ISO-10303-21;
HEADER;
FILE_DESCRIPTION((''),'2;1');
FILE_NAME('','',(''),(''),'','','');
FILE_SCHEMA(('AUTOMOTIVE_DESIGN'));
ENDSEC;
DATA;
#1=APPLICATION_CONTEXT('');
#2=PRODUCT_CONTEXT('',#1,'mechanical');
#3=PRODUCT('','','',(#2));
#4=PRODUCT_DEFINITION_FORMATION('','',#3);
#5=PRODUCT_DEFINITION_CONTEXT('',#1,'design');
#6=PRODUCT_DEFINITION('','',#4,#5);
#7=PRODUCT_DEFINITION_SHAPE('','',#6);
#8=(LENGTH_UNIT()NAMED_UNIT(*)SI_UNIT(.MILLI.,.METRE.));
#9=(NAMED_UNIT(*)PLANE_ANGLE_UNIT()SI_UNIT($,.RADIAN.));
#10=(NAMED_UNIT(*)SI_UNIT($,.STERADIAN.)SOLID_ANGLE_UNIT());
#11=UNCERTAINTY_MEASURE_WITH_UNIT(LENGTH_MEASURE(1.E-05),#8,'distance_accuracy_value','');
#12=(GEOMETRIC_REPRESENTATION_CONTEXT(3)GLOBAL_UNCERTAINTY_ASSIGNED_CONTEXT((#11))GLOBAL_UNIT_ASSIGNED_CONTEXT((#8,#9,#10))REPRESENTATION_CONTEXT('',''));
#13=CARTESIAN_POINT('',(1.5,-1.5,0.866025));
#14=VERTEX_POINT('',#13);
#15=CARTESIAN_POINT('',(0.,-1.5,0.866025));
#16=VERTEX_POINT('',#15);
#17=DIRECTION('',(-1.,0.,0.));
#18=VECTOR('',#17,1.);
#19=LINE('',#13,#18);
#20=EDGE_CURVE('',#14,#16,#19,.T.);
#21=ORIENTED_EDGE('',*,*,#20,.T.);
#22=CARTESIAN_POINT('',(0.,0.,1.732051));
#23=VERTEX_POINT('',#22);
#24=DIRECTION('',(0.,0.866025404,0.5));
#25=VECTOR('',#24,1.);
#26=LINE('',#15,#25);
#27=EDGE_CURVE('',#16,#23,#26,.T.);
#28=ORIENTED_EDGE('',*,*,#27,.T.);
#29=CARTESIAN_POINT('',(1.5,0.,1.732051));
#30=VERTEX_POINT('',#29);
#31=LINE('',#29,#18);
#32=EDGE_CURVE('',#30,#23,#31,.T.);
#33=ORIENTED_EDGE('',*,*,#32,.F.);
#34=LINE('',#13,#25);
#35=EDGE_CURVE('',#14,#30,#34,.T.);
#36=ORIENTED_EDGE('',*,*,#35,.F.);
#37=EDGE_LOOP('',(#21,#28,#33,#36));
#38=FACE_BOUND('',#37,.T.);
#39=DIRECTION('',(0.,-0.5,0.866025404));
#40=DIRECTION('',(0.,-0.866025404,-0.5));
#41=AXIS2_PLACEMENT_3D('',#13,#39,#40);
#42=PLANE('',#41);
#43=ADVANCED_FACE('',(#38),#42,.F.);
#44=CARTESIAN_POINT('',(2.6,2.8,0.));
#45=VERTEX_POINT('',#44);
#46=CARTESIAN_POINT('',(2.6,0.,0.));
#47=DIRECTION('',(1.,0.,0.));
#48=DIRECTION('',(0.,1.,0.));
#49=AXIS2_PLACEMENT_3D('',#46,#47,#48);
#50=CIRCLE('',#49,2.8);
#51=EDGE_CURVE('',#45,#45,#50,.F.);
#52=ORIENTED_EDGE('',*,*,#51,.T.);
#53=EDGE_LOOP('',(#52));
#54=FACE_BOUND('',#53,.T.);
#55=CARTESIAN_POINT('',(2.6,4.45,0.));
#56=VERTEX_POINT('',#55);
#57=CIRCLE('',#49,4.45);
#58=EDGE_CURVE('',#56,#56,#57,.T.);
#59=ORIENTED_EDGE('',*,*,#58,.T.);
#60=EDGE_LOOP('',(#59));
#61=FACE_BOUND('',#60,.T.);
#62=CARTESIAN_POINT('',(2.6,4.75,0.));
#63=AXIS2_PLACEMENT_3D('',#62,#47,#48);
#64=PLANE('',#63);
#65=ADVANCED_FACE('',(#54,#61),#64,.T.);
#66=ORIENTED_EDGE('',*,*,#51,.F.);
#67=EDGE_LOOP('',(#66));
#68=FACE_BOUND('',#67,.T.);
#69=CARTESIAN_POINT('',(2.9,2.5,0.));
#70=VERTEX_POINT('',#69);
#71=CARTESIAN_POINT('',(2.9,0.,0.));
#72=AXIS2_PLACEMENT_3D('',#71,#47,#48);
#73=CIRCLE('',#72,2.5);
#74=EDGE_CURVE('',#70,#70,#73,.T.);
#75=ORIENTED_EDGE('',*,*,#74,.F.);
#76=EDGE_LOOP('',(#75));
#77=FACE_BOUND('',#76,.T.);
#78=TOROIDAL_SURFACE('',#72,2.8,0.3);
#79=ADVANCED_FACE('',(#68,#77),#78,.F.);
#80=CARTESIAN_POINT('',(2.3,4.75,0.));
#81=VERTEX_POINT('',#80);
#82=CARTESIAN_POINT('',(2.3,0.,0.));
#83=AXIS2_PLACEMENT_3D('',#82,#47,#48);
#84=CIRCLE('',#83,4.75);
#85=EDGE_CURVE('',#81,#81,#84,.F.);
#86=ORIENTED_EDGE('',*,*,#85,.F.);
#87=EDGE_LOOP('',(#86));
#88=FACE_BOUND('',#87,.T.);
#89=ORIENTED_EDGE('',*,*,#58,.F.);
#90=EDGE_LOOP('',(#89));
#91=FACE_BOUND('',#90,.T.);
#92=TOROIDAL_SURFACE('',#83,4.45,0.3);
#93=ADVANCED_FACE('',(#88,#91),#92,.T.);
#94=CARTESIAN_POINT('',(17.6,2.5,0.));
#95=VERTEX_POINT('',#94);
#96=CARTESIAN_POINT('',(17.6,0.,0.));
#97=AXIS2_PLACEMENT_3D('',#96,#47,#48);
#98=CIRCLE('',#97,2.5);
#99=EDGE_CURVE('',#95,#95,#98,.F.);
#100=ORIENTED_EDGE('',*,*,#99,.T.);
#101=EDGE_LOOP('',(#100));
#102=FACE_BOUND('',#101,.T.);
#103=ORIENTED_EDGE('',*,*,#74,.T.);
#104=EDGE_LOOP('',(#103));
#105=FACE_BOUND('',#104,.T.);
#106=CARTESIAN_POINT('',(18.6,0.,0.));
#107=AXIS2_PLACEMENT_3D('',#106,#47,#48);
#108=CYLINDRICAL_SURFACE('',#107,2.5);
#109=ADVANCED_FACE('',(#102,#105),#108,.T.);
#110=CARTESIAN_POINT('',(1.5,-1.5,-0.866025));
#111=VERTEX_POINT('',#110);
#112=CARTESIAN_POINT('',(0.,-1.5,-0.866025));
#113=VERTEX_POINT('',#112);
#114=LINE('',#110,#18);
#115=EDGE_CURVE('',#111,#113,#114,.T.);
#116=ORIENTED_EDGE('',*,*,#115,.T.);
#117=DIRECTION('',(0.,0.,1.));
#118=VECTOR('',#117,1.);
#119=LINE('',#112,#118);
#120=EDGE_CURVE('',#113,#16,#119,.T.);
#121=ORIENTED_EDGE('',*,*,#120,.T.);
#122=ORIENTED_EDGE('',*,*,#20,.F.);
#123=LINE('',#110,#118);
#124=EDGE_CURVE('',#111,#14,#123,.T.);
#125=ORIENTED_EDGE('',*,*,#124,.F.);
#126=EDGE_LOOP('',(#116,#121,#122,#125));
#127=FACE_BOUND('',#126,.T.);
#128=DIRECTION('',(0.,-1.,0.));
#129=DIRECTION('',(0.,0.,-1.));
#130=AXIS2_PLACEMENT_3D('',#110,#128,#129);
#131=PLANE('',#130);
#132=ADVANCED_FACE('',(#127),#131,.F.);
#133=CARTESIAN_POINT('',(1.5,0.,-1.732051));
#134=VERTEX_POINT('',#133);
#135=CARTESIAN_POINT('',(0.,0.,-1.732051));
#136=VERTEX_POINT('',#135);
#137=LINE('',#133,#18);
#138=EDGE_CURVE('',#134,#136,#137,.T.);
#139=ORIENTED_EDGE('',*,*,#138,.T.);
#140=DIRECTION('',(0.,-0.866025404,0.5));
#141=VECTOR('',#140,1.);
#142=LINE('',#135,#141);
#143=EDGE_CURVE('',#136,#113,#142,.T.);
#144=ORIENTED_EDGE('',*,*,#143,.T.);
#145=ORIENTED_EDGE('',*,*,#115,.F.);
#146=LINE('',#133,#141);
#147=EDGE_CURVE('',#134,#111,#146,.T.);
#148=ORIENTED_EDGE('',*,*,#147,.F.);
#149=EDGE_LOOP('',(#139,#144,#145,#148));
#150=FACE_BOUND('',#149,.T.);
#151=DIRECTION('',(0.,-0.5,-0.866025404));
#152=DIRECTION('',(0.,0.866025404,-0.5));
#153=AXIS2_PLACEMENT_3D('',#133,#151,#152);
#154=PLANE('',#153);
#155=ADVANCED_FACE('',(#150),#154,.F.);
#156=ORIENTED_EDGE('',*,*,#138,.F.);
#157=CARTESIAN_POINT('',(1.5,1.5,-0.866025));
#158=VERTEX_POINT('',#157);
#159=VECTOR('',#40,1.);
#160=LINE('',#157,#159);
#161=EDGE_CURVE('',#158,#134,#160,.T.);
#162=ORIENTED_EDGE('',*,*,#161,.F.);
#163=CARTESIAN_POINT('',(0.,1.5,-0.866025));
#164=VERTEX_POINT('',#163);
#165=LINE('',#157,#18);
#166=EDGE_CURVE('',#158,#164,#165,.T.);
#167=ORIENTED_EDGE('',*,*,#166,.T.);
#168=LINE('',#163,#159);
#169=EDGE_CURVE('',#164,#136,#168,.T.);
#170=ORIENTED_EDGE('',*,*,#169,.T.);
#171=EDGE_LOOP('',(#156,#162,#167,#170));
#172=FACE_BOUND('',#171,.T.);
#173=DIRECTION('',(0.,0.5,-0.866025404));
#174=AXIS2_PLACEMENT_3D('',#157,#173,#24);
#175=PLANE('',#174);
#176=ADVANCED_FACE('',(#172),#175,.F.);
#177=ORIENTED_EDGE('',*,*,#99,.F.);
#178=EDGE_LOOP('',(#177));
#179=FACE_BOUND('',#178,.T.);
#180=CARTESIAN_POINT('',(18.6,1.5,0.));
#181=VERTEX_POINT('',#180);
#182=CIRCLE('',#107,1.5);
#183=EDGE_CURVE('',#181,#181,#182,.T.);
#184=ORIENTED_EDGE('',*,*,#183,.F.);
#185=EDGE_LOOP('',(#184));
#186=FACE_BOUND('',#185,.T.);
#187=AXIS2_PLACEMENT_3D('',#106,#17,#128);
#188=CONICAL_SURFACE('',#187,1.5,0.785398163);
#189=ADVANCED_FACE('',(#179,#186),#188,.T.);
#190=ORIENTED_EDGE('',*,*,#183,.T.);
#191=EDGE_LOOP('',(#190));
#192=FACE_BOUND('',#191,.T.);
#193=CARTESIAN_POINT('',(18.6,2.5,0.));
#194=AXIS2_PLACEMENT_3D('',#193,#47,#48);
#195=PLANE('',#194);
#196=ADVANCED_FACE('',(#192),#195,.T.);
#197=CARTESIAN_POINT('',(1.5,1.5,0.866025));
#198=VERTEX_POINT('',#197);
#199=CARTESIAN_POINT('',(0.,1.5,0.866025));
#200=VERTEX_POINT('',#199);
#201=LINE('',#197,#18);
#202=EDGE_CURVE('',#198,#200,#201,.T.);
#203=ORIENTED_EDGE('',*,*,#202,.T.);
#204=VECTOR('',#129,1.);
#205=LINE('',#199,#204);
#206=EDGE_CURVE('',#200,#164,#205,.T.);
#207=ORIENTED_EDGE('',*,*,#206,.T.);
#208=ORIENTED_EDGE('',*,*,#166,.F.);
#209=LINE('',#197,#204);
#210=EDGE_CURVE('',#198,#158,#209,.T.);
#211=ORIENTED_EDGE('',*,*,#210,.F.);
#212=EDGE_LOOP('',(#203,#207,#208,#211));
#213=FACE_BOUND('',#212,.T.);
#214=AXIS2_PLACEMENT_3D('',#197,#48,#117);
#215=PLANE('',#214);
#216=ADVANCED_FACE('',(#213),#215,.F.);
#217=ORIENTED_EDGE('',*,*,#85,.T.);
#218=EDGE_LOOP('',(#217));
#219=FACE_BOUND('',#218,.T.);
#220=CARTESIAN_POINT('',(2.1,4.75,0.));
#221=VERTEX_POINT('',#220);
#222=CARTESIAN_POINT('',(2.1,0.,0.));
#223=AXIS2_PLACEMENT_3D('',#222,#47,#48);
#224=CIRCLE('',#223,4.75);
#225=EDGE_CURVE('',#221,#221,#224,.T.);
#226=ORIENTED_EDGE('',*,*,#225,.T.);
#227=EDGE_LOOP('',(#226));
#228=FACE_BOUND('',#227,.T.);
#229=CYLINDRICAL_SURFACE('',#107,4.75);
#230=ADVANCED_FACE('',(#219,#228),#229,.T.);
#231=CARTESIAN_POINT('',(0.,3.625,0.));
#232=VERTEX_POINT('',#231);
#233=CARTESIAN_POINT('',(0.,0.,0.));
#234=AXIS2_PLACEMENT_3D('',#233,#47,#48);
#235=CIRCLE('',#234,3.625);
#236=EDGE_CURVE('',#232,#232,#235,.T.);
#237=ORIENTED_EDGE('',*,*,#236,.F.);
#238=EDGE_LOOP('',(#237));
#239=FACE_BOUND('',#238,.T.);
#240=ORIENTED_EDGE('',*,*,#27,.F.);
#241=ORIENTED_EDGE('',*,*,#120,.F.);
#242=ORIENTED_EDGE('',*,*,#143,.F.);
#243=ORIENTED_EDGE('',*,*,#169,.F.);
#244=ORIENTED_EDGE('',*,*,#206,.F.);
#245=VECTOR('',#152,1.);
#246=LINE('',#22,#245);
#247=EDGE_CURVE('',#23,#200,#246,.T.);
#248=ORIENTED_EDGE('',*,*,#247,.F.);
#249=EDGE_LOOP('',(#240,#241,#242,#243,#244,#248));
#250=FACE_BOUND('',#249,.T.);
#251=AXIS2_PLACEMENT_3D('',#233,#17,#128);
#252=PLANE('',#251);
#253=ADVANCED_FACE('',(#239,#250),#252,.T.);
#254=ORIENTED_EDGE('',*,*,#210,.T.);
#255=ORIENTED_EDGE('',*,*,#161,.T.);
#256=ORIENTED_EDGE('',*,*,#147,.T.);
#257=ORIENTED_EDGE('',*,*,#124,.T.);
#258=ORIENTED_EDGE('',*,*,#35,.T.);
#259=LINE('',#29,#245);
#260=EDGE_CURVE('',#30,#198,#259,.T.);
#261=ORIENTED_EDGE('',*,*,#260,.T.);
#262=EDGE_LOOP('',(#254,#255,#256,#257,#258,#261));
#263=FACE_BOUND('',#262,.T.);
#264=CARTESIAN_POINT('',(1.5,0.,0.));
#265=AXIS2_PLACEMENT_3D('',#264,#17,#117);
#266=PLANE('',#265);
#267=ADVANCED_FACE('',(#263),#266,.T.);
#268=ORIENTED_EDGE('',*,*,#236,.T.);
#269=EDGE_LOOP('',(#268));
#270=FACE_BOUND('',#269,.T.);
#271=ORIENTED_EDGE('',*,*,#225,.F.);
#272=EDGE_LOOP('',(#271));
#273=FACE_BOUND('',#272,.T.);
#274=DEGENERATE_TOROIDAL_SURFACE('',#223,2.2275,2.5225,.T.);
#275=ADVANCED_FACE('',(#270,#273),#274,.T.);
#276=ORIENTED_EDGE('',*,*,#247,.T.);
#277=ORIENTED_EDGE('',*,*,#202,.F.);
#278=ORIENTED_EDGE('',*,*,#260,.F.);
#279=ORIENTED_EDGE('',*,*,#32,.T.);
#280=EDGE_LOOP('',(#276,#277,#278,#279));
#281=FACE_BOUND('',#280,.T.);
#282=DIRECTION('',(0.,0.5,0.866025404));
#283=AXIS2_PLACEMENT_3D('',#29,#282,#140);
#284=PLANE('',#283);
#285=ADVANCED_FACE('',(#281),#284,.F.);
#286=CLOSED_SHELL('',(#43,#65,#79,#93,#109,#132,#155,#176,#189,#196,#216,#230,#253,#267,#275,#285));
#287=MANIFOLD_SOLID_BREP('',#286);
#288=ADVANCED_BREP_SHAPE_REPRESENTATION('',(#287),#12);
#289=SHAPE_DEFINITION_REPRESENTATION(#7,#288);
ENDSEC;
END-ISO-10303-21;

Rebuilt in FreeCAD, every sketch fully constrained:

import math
import FreeCAD as App
import Part
import Sketcher
from FreeCAD import Vector
Q = App.Units.Quantity


def edges_at(feature, points):
    """Names of the edges that pass closest to the given points."""
    edges = feature.Shape.Edges
    near = lambda p: min(range(len(edges)), key=lambda i: edges[i].distToShape(Part.Vertex(*p))[0])
    return sorted({f"Edge{near(p) + 1}" for p in points})


def add_polygon(sketch, points):
    """Adds a closed chain of lines whose ends are joined by coincident constraints."""
    first, n = sketch.GeometryCount, len(points)
    for a, b in zip(points, points[1:] + points[:1]):
        sketch.addGeometry(Part.LineSegment(App.Vector(*a, 0), App.Vector(*b, 0)), False)
    for i in range(n):
        sketch.addConstraint(Sketcher.Constraint("Coincident", first + i, 2, first + (i + 1) % n, 1))

doc = App.newDocument("Part")
body = doc.addObject("PartDesign::Body", "Body")

# Sketch on XY plane
sketch1 = body.newObject("Sketcher::SketchObject", "Sketch")
sketch1.AttachmentSupport = (doc.getObject("XY_Plane"), [""])
sketch1.MapMode = "FlatFace"
sketch1.addGeometry([
    Part.LineSegment(Vector(0, 3.6, 0), Vector(0, 0, 0)),  # 0
    Part.LineSegment(Vector(0, 0, 0), Vector(18.6, 0, 0)),  # 1
    Part.LineSegment(Vector(18.6, 0, 0), Vector(18.6, 2.5, 0)),  # 2
    Part.LineSegment(Vector(18.6, 2.5, 0), Vector(2.6, 2.5, 0)),  # 3
    Part.LineSegment(Vector(2.6, 2.5, 0), Vector(2.6, 4.8, 0)),  # 4
    Part.LineSegment(Vector(2.6, 4.8, 0), Vector(2.1, 4.8, 0)),  # 5
    Part.ArcOfCircle(Part.Circle(Vector(2.1, 2.2, 0), Vector(0, 0, 1), 2.5), math.radians(90), math.radians(146)),  # 6
], False)
sketch1.addConstraint([
    Sketcher.Constraint("Coincident", 0, 2, 1, 1),
    Sketcher.Constraint("Coincident", 1, 2, 2, 1),
    Sketcher.Constraint("Coincident", 2, 2, 3, 1),
    Sketcher.Constraint("Coincident", 3, 2, 4, 1),
    Sketcher.Constraint("Coincident", 4, 2, 5, 1),
    Sketcher.Constraint("Tangent", 5, 2, 6, 1),
    Sketcher.Constraint("Coincident", 6, 2, 0, 1),
    Sketcher.Constraint("Vertical", 0),
    Sketcher.Constraint("Horizontal", 1),
    Sketcher.Constraint("Vertical", 2),
    Sketcher.Constraint("Horizontal", 3),
    Sketcher.Constraint("Vertical", 4),
    Sketcher.Constraint("Horizontal", 5),
    Sketcher.Constraint("Coincident", 0, 2, -1, 1),
    Sketcher.Constraint("DistanceX", 3, 2, 3, 1, 16.0),
    Sketcher.Constraint("DistanceX", 1, 1, 1, 2, 18.6),
    Sketcher.Constraint("DistanceX", 5, 2, 5, 1, 0.5),
    Sketcher.Constraint("DistanceY", 2, 1, 2, 2, 2.5),
    Sketcher.Constraint("DistanceY", 4, 1, 4, 2, 2.25),
    Sketcher.Constraint("Radius", 6, 2.5225),
])
revolution = body.newObject("PartDesign::Revolution", "Revolution")
revolution.Profile = sketch1
revolution.ReferenceAxis = (sketch1, ["H_Axis"])
revolution.Angle = 360

# Sketch on YZ plane
sketch2 = body.newObject("Sketcher::SketchObject", "Sketch001")
sketch2.AttachmentSupport = (doc.getObject("YZ_Plane"), [""])
sketch2.MapMode = "FlatFace"
add_polygon(sketch2, [(1.5, 0.9), (1.5, -0.9), (0, -1.7), (-1.5, -0.9), (-1.5, 0.9), (0, 1.7)])  # lines 0-5
sketch2.addConstraint([
    Sketcher.Constraint("Vertical", 0),
    Sketcher.Constraint("Vertical", 3),
    Sketcher.Constraint("Symmetric", 0, 2, 3, 2, -1, 1),
    Sketcher.Constraint("Symmetric", 1, 2, 4, 2, -1, 1),
    Sketcher.Constraint("PointOnObject", 1, 2, -2),
    Sketcher.Constraint("Parallel", 2, 5),
    Sketcher.Constraint("Horizontal", 0, 2, 2, 2),
    Sketcher.Constraint("Angle", 1, Q("-150 deg")),
    Sketcher.Constraint("DistanceX", 2, 2, 0, 2, 3.0),
    Sketcher.Constraint("DistanceY", 0, 2, 0, 1, 1.732051),
])
pocket1 = body.newObject("PartDesign::Pocket", "Pocket")
pocket1.Profile = sketch2
pocket1.Length = 1.5
pocket1.Reversed = True
doc.recompute()

fillet = body.newObject("PartDesign::Fillet", "Fillet")
fillet.Base = (pocket1, edges_at(pocket1, [(2.6, -2.5, 0), (2.6, -4.75, 0)]))
fillet.Radius = 0.3
doc.recompute()

chamfer = body.newObject("PartDesign::Chamfer", "Chamfer")
chamfer.Base = (fillet, edges_at(fillet, [(18.6, -2.5, 0)]))
chamfer.Size = 1

doc.recompute()
